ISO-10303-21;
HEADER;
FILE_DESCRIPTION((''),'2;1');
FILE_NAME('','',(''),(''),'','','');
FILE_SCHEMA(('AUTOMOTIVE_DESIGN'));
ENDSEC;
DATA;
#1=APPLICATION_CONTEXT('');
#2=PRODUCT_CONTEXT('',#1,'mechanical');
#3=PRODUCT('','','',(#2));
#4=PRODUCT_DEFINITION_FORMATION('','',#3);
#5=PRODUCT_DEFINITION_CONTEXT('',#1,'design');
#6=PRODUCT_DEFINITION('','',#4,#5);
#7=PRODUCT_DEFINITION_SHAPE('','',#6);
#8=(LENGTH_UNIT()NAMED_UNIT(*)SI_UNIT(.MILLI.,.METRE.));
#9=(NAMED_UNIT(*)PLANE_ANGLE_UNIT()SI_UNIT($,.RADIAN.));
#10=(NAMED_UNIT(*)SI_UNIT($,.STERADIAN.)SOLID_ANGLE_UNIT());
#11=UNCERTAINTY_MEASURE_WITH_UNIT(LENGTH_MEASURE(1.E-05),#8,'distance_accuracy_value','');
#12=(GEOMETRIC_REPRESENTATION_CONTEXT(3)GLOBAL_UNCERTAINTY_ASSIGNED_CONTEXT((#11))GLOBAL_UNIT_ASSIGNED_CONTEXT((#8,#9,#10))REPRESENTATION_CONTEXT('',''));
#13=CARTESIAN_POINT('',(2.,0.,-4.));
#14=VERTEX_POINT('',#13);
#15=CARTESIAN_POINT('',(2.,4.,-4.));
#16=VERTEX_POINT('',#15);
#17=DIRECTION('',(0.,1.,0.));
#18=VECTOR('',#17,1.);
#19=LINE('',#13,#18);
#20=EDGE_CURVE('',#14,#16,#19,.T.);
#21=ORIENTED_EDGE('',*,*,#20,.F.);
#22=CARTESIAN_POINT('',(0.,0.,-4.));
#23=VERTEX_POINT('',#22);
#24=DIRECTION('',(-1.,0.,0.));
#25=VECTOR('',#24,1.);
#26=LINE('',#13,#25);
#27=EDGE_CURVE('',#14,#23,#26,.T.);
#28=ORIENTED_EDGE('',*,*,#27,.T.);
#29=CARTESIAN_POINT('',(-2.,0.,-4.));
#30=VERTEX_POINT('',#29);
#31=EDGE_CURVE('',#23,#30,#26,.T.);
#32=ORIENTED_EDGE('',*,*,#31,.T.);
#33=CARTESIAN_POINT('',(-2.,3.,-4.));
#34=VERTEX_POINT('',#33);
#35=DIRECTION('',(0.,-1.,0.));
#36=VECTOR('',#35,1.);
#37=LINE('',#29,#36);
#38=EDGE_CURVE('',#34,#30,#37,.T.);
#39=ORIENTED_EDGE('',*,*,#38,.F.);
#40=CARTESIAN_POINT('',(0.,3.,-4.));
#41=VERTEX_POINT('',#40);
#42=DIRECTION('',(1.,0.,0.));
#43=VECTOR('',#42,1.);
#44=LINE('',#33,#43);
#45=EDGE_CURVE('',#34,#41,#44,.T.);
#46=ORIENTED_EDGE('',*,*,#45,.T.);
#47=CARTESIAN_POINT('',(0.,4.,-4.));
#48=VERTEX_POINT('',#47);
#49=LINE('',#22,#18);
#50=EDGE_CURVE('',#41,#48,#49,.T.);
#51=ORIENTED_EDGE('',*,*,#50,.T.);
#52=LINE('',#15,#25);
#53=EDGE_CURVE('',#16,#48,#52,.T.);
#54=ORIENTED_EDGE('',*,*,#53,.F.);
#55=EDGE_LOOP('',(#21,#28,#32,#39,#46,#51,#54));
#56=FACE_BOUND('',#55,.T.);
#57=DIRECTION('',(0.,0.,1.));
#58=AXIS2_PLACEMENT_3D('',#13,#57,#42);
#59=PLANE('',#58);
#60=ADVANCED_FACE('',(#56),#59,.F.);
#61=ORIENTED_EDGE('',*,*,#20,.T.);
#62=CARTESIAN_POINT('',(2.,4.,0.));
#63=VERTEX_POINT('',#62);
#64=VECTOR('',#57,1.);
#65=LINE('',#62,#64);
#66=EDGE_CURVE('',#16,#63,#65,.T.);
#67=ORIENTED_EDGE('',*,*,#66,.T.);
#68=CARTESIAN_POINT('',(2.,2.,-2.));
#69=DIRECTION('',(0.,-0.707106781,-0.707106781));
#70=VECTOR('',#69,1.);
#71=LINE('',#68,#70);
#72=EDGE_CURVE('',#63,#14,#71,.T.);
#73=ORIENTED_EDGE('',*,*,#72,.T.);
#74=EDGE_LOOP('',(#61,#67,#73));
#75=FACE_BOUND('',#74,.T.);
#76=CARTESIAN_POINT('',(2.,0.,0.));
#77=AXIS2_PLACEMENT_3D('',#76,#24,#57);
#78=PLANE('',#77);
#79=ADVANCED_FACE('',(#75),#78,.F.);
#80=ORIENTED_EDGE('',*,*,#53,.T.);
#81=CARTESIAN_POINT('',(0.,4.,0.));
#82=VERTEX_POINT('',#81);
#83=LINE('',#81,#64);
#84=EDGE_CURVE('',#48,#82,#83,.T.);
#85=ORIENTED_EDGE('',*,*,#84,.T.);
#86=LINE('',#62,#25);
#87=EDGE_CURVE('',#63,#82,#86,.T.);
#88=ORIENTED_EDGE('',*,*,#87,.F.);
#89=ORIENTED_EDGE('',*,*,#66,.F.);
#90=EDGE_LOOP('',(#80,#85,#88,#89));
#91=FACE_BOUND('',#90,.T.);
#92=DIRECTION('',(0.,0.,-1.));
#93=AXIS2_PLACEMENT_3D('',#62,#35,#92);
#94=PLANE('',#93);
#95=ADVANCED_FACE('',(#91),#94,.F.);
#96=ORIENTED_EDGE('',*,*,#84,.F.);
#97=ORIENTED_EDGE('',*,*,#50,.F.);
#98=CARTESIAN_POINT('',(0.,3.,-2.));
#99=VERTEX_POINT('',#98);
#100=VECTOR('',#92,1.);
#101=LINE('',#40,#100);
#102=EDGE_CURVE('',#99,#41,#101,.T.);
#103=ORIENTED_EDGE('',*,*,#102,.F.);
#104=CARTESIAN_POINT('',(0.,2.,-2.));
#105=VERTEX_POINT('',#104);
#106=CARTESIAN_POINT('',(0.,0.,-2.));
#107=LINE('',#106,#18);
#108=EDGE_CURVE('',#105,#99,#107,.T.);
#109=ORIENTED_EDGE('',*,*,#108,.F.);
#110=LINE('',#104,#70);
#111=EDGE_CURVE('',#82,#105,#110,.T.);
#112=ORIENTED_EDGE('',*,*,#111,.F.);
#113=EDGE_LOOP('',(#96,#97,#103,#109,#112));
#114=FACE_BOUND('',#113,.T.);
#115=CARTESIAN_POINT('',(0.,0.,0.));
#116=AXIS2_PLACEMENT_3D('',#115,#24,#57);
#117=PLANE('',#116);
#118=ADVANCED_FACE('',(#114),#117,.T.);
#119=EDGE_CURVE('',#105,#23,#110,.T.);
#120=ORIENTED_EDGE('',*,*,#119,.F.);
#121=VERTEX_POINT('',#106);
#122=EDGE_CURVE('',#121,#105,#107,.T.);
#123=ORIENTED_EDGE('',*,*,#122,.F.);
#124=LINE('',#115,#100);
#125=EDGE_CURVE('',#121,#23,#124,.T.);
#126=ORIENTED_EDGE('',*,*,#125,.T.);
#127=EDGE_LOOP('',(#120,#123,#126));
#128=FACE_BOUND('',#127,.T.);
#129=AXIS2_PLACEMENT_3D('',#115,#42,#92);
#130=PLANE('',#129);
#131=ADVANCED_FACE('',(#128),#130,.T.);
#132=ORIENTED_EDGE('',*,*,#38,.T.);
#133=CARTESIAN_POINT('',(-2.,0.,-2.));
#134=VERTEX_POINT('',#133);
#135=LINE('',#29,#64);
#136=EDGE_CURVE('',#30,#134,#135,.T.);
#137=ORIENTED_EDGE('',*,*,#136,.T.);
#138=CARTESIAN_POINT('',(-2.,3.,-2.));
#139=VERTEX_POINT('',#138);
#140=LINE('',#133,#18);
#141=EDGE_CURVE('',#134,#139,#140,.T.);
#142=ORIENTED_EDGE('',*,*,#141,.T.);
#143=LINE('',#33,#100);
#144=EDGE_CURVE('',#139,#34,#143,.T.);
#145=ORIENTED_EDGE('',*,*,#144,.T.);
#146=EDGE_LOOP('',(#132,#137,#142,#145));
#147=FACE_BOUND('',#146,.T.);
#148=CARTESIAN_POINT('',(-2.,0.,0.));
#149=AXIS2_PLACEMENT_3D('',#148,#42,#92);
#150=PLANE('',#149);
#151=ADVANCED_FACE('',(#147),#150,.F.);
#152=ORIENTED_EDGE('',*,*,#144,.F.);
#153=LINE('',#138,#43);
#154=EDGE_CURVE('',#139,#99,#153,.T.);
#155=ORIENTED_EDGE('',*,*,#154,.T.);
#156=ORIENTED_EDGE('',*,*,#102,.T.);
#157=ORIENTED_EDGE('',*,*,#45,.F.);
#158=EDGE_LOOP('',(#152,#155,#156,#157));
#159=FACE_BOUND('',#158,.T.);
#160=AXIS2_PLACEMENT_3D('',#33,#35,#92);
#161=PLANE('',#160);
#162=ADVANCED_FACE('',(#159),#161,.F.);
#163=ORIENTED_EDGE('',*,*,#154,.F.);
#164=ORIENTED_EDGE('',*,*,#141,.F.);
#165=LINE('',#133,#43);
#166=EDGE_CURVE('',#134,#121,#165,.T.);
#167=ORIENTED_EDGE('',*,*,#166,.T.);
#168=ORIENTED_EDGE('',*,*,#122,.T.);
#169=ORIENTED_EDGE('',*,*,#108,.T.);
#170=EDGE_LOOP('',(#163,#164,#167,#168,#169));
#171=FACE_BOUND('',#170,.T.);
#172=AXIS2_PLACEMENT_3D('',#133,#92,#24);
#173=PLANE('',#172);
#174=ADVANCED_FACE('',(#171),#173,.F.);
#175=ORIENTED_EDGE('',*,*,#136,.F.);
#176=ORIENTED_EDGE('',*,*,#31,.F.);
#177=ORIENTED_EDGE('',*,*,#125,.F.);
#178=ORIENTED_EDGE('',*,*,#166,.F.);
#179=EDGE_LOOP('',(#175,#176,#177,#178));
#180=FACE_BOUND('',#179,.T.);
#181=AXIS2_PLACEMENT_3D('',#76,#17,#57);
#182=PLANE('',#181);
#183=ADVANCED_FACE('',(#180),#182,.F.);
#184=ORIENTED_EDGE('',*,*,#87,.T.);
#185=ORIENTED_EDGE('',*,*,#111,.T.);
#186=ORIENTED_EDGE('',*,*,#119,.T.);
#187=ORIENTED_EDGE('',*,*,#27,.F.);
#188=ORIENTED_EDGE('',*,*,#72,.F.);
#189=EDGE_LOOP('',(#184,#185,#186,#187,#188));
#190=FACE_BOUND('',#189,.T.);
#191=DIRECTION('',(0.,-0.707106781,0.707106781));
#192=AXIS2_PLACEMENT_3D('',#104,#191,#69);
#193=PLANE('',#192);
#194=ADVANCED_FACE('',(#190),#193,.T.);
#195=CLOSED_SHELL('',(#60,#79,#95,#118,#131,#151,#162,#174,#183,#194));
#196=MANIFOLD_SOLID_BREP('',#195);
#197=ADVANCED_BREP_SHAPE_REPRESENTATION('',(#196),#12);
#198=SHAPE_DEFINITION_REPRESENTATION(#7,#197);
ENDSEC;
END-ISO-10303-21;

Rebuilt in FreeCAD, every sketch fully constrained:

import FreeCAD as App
import Part
import Sketcher


def add_polygon(sketch, points):
    """Adds a closed chain of lines whose ends are joined by coincident constraints."""
    first, n = sketch.GeometryCount, len(points)
    for a, b in zip(points, points[1:] + points[:1]):
        sketch.addGeometry(Part.LineSegment(App.Vector(*a, 0), App.Vector(*b, 0)), False)
    for i in range(n):
        sketch.addConstraint(Sketcher.Constraint("Coincident", first + i, 2, first + (i + 1) % n, 1))

doc = App.newDocument("Part")
body = doc.addObject("PartDesign::Body", "Body")

# Sketch on YZ plane
sketch1 = body.newObject("Sketcher::SketchObject", "Sketch")
sketch1.AttachmentSupport = (doc.getObject("YZ_Plane"), [""])
sketch1.MapMode = "FlatFace"
add_polygon(sketch1, [(4, 0), (0, 0), (0, -4), (4, -4)])  # lines 0-3
sketch1.addConstraint(Sketcher.Constraint("Horizontal", 0))
sketch1.addConstraint(Sketcher.Constraint("Vertical", 1))
sketch1.addConstraint(Sketcher.Constraint("Horizontal", 2))
sketch1.addConstraint(Sketcher.Constraint("Vertical", 3))
sketch1.addConstraint(Sketcher.Constraint("Coincident", 0, 2, -1, 1))
sketch1.addConstraint(Sketcher.Constraint("Equal", 2, 1))
sketch1.addConstraint(Sketcher.Constraint("DistanceX", 0, 2, 0, 1, 4.0))
pad1 = body.newObject("PartDesign::Pad", "Pad")
pad1.Profile = sketch1
pad1.Length = 2

# Sketch on YZ plane
sketch2 = body.newObject("Sketcher::SketchObject", "Sketch001")
sketch2.AttachmentSupport = (doc.getObject("YZ_Plane"), [""])
sketch2.MapMode = "FlatFace"
add_polygon(sketch2, [(3, -4), (0, -4), (0, -2), (3, -2)])  # lines 0-3
sketch2.addConstraint(Sketcher.Constraint("Horizontal", 0))
sketch2.addConstraint(Sketcher.Constraint("Vertical", 1))
sketch2.addConstraint(Sketcher.Constraint("Horizontal", 2))
sketch2.addConstraint(Sketcher.Constraint("Vertical", 3))
sketch2.addConstraint(Sketcher.Constraint("PointOnObject", 0, 2, -2))
sketch2.addConstraint(Sketcher.Constraint("DistanceX", 0, 2, 0, 1, 3.0))
sketch2.addConstraint(Sketcher.Constraint("DistanceY", 1, 1, 1, 2, 2.0))
sketch2.addConstraint(Sketcher.Constraint("DistanceY", 0, 2, -1, 1, 4.0))
pad2 = body.newObject("PartDesign::Pad", "Pad001")
pad2.Profile = sketch2
pad2.Length = 2
pad2.Reversed = True

# Sketch on YZ plane
sketch3 = body.newObject("Sketcher::SketchObject", "Sketch002")
sketch3.AttachmentSupport = (doc.getObject("YZ_Plane"), [""])
sketch3.MapMode = "FlatFace"
sketch3.AttachmentOffset = App.Placement(App.Vector(0, 0, 2), App.Rotation())
add_polygon(sketch3, [(0, -4), (4, 0), (0, 0)])  # lines 0-2
sketch3.addConstraint(Sketcher.Constraint("Horizontal", 1))
sketch3.addConstraint(Sketcher.Constraint("Vertical", 2))
sketch3.addConstraint(Sketcher.Constraint("Coincident", 1, 2, -1, 1))
sketch3.addConstraint(Sketcher.Constraint("Equal", 1, 2))
sketch3.addConstraint(Sketcher.Constraint("DistanceX", 1, 2, 1, 1, 4.0))
pocket1 = body.newObject("PartDesign::Pocket", "Pocket")
pocket1.Profile = sketch3
pocket1.Length = 2

doc.recompute()
